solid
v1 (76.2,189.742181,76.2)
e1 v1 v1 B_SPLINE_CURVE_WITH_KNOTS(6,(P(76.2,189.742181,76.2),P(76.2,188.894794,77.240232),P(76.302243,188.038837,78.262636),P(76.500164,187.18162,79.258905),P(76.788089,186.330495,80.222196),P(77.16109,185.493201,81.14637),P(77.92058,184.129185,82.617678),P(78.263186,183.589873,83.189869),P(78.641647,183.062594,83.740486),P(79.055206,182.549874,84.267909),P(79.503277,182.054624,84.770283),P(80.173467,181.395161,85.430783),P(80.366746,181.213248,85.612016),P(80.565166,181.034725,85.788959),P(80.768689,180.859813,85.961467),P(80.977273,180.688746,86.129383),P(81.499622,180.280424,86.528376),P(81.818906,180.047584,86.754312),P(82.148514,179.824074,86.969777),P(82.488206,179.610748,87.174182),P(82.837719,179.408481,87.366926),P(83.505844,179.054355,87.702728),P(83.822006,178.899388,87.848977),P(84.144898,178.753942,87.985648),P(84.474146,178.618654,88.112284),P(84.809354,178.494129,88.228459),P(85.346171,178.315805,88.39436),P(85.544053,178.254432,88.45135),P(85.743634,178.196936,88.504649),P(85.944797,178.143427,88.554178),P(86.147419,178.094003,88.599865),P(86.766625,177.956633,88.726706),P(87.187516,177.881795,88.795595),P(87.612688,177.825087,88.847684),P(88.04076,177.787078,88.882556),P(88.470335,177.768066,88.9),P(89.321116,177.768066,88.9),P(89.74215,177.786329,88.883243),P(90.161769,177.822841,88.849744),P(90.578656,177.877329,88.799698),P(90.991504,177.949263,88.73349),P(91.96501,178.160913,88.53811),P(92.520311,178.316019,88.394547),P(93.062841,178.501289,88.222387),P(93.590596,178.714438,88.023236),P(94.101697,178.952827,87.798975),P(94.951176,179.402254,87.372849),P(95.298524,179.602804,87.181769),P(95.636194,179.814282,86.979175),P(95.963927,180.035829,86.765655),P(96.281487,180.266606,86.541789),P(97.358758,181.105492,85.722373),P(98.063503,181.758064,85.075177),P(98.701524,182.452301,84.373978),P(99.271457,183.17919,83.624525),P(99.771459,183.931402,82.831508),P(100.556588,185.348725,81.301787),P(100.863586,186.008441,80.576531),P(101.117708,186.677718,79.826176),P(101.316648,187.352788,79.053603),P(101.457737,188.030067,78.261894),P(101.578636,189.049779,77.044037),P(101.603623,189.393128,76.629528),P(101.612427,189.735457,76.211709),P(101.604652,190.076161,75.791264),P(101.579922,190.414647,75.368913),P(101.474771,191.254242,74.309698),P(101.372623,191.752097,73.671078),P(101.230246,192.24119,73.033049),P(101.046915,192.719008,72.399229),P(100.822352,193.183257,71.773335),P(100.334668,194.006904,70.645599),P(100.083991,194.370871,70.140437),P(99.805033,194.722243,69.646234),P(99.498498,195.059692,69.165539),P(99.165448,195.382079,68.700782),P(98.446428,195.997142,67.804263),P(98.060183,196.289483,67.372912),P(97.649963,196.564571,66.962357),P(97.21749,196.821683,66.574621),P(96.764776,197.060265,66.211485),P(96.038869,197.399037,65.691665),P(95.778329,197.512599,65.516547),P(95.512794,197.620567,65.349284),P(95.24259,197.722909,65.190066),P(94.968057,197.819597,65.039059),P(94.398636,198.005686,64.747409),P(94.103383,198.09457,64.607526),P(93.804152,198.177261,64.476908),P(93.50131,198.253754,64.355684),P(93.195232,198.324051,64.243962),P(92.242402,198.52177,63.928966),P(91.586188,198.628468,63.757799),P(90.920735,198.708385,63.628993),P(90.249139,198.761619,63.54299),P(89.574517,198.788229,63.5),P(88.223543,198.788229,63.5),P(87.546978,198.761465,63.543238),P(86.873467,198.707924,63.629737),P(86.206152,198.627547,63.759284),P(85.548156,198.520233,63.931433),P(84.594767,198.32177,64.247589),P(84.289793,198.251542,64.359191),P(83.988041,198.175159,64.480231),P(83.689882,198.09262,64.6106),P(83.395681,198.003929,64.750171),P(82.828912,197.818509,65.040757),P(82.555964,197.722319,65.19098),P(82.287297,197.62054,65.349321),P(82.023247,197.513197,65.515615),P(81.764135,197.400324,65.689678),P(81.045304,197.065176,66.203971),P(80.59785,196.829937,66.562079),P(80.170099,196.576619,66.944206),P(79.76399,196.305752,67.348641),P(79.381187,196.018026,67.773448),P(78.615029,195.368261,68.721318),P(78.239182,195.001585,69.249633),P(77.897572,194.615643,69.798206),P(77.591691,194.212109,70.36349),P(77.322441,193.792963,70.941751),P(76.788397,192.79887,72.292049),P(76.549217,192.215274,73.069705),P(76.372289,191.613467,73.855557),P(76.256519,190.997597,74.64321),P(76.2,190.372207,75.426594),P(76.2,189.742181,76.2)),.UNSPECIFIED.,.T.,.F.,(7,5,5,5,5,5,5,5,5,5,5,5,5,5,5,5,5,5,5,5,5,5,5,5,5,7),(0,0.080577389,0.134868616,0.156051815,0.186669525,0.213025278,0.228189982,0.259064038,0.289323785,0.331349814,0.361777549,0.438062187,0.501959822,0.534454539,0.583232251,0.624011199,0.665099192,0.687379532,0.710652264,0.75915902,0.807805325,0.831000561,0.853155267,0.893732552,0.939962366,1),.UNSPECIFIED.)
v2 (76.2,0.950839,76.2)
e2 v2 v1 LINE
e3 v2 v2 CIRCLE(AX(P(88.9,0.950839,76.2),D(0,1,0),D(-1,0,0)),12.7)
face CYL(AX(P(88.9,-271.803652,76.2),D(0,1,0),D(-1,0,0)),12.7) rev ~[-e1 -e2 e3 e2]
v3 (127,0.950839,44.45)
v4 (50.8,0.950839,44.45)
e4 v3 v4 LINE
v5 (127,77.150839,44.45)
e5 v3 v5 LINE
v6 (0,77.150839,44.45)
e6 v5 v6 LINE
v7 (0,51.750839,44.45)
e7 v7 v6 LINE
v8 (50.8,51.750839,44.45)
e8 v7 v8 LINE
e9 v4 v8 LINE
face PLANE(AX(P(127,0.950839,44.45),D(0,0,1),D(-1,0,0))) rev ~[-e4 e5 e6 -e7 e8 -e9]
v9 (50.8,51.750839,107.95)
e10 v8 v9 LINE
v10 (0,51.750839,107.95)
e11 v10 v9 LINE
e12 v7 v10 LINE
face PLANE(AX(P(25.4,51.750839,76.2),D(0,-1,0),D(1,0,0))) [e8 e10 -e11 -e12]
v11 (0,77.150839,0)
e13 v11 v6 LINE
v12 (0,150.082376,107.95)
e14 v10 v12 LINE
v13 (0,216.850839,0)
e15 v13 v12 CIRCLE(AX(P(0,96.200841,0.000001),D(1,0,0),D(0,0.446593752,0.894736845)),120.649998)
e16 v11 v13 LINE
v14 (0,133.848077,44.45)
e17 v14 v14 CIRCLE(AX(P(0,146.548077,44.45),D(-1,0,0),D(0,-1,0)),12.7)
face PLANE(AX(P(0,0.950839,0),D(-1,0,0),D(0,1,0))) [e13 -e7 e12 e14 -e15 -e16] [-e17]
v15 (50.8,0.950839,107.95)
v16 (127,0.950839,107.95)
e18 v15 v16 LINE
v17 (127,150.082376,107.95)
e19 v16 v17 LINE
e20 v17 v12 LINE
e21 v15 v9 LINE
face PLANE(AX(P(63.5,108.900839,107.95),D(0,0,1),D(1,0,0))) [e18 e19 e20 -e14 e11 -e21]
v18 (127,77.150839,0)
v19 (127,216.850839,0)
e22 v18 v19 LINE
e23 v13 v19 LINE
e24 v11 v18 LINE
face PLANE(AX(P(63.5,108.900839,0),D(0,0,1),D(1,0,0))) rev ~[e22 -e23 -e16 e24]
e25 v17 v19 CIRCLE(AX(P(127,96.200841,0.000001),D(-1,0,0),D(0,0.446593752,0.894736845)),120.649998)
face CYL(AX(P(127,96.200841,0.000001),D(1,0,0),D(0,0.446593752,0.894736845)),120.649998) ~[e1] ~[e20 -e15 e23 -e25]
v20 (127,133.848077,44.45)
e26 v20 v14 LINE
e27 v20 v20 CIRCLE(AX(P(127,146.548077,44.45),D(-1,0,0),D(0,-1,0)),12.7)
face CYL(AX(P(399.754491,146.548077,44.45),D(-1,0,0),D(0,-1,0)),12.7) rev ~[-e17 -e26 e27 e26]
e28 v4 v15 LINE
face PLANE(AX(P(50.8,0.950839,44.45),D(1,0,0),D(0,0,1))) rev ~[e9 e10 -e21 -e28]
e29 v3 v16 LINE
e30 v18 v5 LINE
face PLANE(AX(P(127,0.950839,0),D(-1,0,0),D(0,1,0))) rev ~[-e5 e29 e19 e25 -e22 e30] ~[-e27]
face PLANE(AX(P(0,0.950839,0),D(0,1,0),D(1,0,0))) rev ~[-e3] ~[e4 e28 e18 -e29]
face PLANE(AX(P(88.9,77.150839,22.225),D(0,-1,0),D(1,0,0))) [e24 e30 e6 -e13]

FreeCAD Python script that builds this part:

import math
import FreeCAD as App
import Part
import Sketcher
Q = App.Units.Quantity

doc = App.newDocument("Part")
body = doc.addObject("PartDesign::Body", "Body")

# Sketch on XY plane
sketch1 = doc.addObject("Sketcher::SketchObject", "Sketch")
body.addObject(sketch1)
sketch1.AttachmentSupport = (doc.XY_Plane, [""])
sketch1.MapMode = "FlatFace"
sketch1.addGeometry(Part.LineSegment(App.Vector(0, 216.850839, 0), App.Vector(0, 0.950839, 0)), False)
sketch1.addGeometry(Part.LineSegment(App.Vector(0, 0.950839, 0), App.Vector(127, 0.950839, 0)), False)
sketch1.addGeometry(Part.LineSegment(App.Vector(127, 0.950839, 0), App.Vector(127, 216.850839, 0)), False)
sketch1.addGeometry(Part.LineSegment(App.Vector(127, 216.850839, 0), App.Vector(0, 216.850839, 0)), False)
sketch1.addConstraint(Sketcher.Constraint("Coincident", 0, 2, 1, 1))
sketch1.addConstraint(Sketcher.Constraint("Coincident", 1, 2, 2, 1))
sketch1.addConstraint(Sketcher.Constraint("Coincident", 2, 2, 3, 1))
sketch1.addConstraint(Sketcher.Constraint("Coincident", 3, 2, 0, 1))
sketch1.addConstraint(Sketcher.Constraint("Vertical", 0))
sketch1.addConstraint(Sketcher.Constraint("Horizontal", 1))
sketch1.addConstraint(Sketcher.Constraint("Vertical", 2))
sketch1.addConstraint(Sketcher.Constraint("Horizontal", 3))
sketch1.addConstraint(Sketcher.Constraint("PointOnObject", 0, 2, -2))
sketch1.addConstraint(Sketcher.Constraint("DistanceX", 1, 1, 1, 2, Q("5 in")))
sketch1.addConstraint(Sketcher.Constraint("DistanceY", 0, 2, 0, 1, Q("8.5 in")))
sketch1.addConstraint(Sketcher.Constraint("DistanceY", -1, 1, 0, 2, Q("0.950839 mm")))
pad1 = doc.addObject("PartDesign::Pad", "Pad")
body.addObject(pad1)
pad1.Profile = sketch1
pad1.Length = Q("4.25 in")

# Sketch on XZ plane
sketch2 = doc.addObject("Sketcher::SketchObject", "Sketch001")
body.addObject(sketch2)
sketch2.AttachmentSupport = (doc.XZ_Plane, [""])
sketch2.MapMode = "FlatFace"
sketch2.AttachmentOffset = App.Placement(App.Vector(0, 0, -0.950839), App.Rotation())
sketch2.addGeometry(Part.LineSegment(App.Vector(127, 0, 0), App.Vector(127, 44.45, 0)), False)
sketch2.addGeometry(Part.LineSegment(App.Vector(127, 44.45, 0), App.Vector(0, 44.45, 0)), False)
sketch2.addGeometry(Part.LineSegment(App.Vector(0, 44.45, 0), App.Vector(0, 0, 0)), False)
sketch2.addGeometry(Part.LineSegment(App.Vector(0, 0, 0), App.Vector(127, 0, 0)), False)
sketch2.addConstraint(Sketcher.Constraint("Coincident", 0, 2, 1, 1))
sketch2.addConstraint(Sketcher.Constraint("Coincident", 1, 2, 2, 1))
sketch2.addConstraint(Sketcher.Constraint("Coincident", 2, 2, 3, 1))
sketch2.addConstraint(Sketcher.Constraint("Coincident", 3, 2, 0, 1))
sketch2.addConstraint(Sketcher.Constraint("Vertical", 0))
sketch2.addConstraint(Sketcher.Constraint("Horizontal", 1))
sketch2.addConstraint(Sketcher.Constraint("Vertical", 2))
sketch2.addConstraint(Sketcher.Constraint("Horizontal", 3))
sketch2.addConstraint(Sketcher.Constraint("Coincident", 2, 2, -1, 1))
sketch2.addConstraint(Sketcher.Constraint("DistanceX", 1, 2, 1, 1, Q("5 in")))
sketch2.addConstraint(Sketcher.Constraint("DistanceY", 0, 1, 0, 2, Q("1.75 in")))
pocket1 = doc.addObject("PartDesign::Pocket", "Pocket")
body.addObject(pocket1)
pocket1.Profile = sketch2
pocket1.Length = Q("3 in")

# Sketch on YZ plane
sketch3 = doc.addObject("Sketcher::SketchObject", "Sketch002")
body.addObject(sketch3)
sketch3.AttachmentSupport = (doc.YZ_Plane, [""])
sketch3.MapMode = "FlatFace"
sketch3.AttachmentOffset = App.Placement(App.Vector(0, 0, 5 * 25.4), App.Rotation())
sketch3.addGeometry(Part.Circle(App.Vector(146.548077, 44.45, 0), App.Vector(0, 0, 1), 12.7), False)
sketch3.addConstraint(Sketcher.Constraint("Diameter", 0, Q("1 in")))
sketch3.addConstraint(Sketcher.Constraint("DistanceY", -1, 1, 0, 3, Q("1.75 in")))
sketch3.addConstraint(Sketcher.Constraint("DistanceX", -1, 1, 0, 3, Q("146.548077 mm")))
doc.recompute()
hole = doc.addObject("PartDesign::Hole", "Hole")
body.addObject(hole)
hole.Profile = sketch3
hole.ThreadType = "None"
hole.Diameter = Q("1 in")
hole.DepthType = "ThroughAll"

# Sketch on YZ plane
sketch4 = doc.addObject("Sketcher::SketchObject", "Sketch003")
body.addObject(sketch4)
sketch4.AttachmentSupport = (doc.YZ_Plane, [""])
sketch4.MapMode = "FlatFace"
sketch4.AttachmentOffset = App.Placement(App.Vector(0, 0, 5 * 25.4), App.Rotation())
sketch4.addGeometry(Part.ArcOfCircle(Part.Circle(App.Vector(96.200841, 0.000001, 0), App.Vector(0, 0, 1), 120.649998), math.radians(-0.000001), math.radians(63.474648)), False)
sketch4.addGeometry(Part.LineSegment(App.Vector(216.850839, 0, 0), App.Vector(216.850839, 107.95, 0)), False)
sketch4.addGeometry(Part.LineSegment(App.Vector(216.850839, 107.95, 0), App.Vector(150.082376, 107.95, 0)), False)
sketch4.addConstraint(Sketcher.Constraint("Tangent", 0, 1, 1, 1))
sketch4.addConstraint(Sketcher.Constraint("Coincident", 1, 2, 2, 1))
sketch4.addConstraint(Sketcher.Constraint("Coincident", 2, 2, 0, 2))
sketch4.addConstraint(Sketcher.Constraint("Vertical", 1))
sketch4.addConstraint(Sketcher.Constraint("Horizontal", 2))
sketch4.addConstraint(Sketcher.Constraint("PointOnObject", 0, 3, -1))
sketch4.addConstraint(Sketcher.Constraint("Radius", 0, Q("4.7499999 in")))
sketch4.addConstraint(Sketcher.Constraint("DistanceY", 1, 1, 1, 2, Q("4.25 in")))
sketch4.addConstraint(Sketcher.Constraint("DistanceX", -1, 1, 0, 3, Q("96.200841 mm")))
pocket2 = doc.addObject("PartDesign::Pocket", "Pocket001")
body.addObject(pocket2)
pocket2.Profile = sketch4
pocket2.Type = "ThroughAll"

# Sketch on XZ plane
sketch5 = doc.addObject("Sketcher::SketchObject", "Sketch004")
body.addObject(sketch5)
sketch5.AttachmentSupport = (doc.XZ_Plane, [""])
sketch5.MapMode = "FlatFace"
sketch5.AttachmentOffset = App.Placement(App.Vector(0, 0, -0.950839), App.Rotation())
sketch5.addGeometry(Part.Circle(App.Vector(88.9, 76.2, 0), App.Vector(0, 0, 1), 12.7), False)
sketch5.addConstraint(Sketcher.Constraint("Diameter", 0, Q("1 in")))
sketch5.addConstraint(Sketcher.Constraint("DistanceY", -1, 1, 0, 3, Q("3 in")))
sketch5.addConstraint(Sketcher.Constraint("DistanceX", -1, 1, 0, 3, Q("3.5 in")))
doc.recompute()
hole2 = doc.addObject("PartDesign::Hole", "Hole001")
body.addObject(hole2)
hole2.Profile = sketch5
hole2.ThreadType = "None"
hole2.Diameter = Q("1 in")
hole2.DepthType = "ThroughAll"

# Sketch on XZ plane
sketch6 = doc.addObject("Sketcher::SketchObject", "Sketch005")
body.addObject(sketch6)
sketch6.AttachmentSupport = (doc.XZ_Plane, [""])
sketch6.MapMode = "FlatFace"
sketch6.AttachmentOffset = App.Placement(App.Vector(0, 0, -0.950839), App.Rotation())
sketch6.addGeometry(Part.LineSegment(App.Vector(0, 107.95, 0), App.Vector(0, 44.45, 0)), False)
sketch6.addGeometry(Part.LineSegment(App.Vector(0, 44.45, 0), App.Vector(50.8, 44.45, 0)), False)
sketch6.addGeometry(Part.LineSegment(App.Vector(50.8, 44.45, 0), App.Vector(50.8, 107.95, 0)), False)
sketch6.addGeometry(Part.LineSegment(App.Vector(50.8, 107.95, 0), App.Vector(0, 107.95, 0)), False)
sketch6.addConstraint(Sketcher.Constraint("Coincident", 0, 2, 1, 1))
sketch6.addConstraint(Sketcher.Constraint("Coincident", 1, 2, 2, 1))
sketch6.addConstraint(Sketcher.Constraint("Coincident", 2, 2, 3, 1))
sketch6.addConstraint(Sketcher.Constraint("Coincident", 3, 2, 0, 1))
sketch6.addConstraint(Sketcher.Constraint("Vertical", 0))
sketch6.addConstraint(Sketcher.Constraint("Horizontal", 1))
sketch6.addConstraint(Sketcher.Constraint("Vertical", 2))
sketch6.addConstraint(Sketcher.Constraint("Horizontal", 3))
sketch6.addConstraint(Sketcher.Constraint("PointOnObject", 0, 2, -2))
sketch6.addConstraint(Sketcher.Constraint("DistanceX", 1, 1, 1, 2, Q("2 in")))
sketch6.addConstraint(Sketcher.Constraint("DistanceY", 0, 2, 0, 1, Q("2.5 in")))
sketch6.addConstraint(Sketcher.Constraint("DistanceY", -1, 1, 0, 2, Q("1.75 in")))
pocket3 = doc.addObject("PartDesign::Pocket", "Pocket002")
body.addObject(pocket3)
pocket3.Profile = sketch6
pocket3.Length = Q("2 in")

doc.recompute()
